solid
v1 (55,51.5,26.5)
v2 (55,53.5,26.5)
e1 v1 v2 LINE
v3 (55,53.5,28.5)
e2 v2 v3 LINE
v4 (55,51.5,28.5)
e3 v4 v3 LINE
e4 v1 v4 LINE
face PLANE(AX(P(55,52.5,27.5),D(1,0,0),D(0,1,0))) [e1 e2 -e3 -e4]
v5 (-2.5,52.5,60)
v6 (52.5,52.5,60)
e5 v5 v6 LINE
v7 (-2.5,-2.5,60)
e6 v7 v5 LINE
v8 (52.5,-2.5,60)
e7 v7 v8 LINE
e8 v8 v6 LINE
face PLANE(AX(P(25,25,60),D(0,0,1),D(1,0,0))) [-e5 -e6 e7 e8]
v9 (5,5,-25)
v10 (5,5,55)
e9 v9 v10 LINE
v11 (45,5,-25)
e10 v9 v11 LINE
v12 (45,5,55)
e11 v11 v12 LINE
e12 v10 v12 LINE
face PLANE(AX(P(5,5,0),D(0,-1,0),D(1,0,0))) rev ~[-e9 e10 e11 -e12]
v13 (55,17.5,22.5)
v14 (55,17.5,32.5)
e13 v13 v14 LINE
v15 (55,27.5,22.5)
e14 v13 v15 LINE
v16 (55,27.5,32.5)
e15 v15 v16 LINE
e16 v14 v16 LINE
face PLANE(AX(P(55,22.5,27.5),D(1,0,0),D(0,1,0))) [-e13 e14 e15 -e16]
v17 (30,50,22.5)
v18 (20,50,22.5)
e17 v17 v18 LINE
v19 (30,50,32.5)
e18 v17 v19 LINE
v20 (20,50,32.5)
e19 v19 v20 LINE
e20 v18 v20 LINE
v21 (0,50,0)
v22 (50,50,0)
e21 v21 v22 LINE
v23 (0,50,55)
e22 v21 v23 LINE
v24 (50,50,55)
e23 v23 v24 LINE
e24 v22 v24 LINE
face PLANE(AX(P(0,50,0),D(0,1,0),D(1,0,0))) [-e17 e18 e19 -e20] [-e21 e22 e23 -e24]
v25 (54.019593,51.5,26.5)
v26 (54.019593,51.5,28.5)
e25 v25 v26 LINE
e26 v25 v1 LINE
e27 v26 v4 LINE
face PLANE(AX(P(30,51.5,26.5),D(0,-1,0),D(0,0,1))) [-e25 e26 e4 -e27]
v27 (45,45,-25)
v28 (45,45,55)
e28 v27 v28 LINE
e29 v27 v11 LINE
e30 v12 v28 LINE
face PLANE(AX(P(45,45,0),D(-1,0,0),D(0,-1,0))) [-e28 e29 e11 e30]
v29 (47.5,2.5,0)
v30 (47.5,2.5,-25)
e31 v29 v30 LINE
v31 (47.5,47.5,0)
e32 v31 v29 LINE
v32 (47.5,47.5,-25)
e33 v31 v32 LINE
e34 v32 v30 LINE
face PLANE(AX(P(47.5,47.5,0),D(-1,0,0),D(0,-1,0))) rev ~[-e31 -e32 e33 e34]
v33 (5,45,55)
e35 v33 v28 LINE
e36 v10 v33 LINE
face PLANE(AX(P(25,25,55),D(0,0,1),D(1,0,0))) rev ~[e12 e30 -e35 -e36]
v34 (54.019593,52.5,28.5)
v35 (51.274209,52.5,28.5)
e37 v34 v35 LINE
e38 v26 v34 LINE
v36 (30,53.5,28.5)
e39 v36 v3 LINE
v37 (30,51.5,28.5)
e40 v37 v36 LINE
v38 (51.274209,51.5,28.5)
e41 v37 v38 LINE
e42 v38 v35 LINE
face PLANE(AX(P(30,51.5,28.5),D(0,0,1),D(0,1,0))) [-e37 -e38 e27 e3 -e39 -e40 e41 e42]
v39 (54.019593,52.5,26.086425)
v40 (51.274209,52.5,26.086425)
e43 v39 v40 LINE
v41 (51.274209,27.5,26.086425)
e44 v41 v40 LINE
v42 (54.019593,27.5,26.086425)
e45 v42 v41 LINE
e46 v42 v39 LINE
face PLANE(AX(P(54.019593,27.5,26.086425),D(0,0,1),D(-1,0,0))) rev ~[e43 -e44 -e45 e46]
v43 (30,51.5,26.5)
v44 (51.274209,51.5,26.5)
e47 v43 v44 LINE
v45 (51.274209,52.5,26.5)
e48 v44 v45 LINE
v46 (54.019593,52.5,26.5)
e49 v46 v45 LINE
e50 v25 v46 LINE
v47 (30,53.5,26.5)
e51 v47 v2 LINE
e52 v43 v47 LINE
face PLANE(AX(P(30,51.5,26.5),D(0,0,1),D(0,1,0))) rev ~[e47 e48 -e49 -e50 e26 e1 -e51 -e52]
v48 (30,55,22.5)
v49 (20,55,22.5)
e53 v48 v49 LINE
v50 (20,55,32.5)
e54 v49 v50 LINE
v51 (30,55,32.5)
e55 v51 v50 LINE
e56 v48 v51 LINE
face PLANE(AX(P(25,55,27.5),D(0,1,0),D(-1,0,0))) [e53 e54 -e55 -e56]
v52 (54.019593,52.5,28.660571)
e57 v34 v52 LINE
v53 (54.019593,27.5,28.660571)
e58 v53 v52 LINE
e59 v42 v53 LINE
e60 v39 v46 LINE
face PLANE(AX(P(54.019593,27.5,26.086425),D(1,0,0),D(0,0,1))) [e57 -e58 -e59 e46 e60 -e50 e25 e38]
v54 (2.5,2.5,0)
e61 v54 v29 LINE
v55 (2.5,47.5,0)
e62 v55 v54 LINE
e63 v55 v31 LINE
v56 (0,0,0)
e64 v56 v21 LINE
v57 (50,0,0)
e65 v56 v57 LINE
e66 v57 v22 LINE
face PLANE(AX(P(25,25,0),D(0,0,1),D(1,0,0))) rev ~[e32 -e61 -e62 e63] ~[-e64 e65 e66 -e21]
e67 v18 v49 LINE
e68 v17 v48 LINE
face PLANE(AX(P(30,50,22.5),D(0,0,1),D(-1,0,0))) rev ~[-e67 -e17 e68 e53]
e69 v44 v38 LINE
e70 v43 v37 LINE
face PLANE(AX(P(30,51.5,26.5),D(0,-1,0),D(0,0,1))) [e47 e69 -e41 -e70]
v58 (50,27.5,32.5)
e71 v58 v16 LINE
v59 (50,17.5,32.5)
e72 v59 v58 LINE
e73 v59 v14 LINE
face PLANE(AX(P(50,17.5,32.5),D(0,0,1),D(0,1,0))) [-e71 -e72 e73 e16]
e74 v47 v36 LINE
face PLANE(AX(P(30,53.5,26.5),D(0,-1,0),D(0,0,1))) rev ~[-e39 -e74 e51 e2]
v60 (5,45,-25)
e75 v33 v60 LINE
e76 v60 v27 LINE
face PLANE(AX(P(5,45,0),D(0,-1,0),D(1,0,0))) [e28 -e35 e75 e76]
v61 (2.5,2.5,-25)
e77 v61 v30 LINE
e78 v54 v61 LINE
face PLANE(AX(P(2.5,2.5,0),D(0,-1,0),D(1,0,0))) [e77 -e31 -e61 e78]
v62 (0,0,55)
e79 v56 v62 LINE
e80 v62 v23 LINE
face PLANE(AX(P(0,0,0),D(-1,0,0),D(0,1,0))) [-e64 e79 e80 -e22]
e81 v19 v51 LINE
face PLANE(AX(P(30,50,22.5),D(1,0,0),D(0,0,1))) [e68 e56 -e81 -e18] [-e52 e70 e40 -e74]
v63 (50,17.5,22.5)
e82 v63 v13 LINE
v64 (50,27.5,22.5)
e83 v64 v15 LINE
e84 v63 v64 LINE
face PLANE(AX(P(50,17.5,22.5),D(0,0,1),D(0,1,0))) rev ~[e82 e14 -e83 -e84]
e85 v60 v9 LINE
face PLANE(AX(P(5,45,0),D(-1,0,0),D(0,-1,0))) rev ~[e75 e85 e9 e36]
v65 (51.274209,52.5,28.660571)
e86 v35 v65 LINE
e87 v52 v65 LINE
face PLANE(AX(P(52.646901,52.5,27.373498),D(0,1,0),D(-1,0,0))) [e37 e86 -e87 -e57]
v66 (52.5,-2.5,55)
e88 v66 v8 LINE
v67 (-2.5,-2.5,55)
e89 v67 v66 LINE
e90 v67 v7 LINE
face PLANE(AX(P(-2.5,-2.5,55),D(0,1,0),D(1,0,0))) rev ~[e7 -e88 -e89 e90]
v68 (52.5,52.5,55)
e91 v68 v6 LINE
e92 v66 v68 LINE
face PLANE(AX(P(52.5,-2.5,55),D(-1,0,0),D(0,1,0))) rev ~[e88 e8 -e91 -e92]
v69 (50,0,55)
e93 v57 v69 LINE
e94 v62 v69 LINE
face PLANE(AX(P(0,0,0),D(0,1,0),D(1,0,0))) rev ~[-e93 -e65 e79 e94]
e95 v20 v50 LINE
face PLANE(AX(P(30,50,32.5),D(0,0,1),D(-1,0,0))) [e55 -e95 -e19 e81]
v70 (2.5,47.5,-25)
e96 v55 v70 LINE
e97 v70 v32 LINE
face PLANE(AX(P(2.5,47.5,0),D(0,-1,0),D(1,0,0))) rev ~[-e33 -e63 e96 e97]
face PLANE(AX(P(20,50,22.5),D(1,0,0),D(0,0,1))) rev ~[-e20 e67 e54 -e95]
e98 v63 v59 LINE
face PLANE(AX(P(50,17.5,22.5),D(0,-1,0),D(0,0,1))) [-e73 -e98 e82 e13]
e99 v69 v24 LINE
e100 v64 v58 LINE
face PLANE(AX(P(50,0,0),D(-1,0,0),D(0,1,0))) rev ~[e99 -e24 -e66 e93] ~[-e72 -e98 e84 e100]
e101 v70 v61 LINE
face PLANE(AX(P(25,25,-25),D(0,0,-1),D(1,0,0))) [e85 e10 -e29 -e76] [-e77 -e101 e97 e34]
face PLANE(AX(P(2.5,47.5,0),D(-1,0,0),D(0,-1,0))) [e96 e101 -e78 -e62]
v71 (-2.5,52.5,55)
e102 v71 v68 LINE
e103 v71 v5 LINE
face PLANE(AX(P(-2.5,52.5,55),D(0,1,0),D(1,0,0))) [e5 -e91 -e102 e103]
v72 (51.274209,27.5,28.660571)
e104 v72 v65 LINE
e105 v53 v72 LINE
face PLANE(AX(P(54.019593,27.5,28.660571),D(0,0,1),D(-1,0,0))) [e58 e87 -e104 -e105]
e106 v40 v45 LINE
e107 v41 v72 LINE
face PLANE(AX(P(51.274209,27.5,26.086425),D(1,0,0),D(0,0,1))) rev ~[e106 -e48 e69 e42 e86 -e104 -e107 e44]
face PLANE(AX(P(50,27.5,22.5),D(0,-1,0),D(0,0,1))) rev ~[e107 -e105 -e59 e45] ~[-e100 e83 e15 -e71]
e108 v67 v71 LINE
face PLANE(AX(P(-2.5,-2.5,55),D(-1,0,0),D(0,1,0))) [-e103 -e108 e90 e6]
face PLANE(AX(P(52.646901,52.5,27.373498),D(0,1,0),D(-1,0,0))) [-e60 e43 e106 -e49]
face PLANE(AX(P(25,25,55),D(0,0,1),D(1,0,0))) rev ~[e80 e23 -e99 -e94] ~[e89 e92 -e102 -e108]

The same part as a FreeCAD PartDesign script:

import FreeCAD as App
import Part
import Sketcher
from FreeCAD import Vector

doc = App.newDocument("Part")
body = doc.addObject("PartDesign::Body", "Body")

# Sketch on XY plane
sketch1 = doc.addObject("Sketcher::SketchObject", "Sketch")
body.addObject(sketch1)
sketch1.AttachmentSupport = (doc.XY_Plane, [""])
sketch1.MapMode = "FlatFace"
sketch1.addGeometry(Part.LineSegment(Vector(0, 50, 0), Vector(0, 0, 0)), False)
sketch1.addGeometry(Part.LineSegment(Vector(0, 0, 0), Vector(50, 0, 0)), False)
sketch1.addGeometry(Part.LineSegment(Vector(50, 0, 0), Vector(50, 50, 0)), False)
sketch1.addGeometry(Part.LineSegment(Vector(50, 50, 0), Vector(0, 50, 0)), False)
sketch1.addGeometry(Part.LineSegment(Vector(45, 5, 0), Vector(5, 5, 0)), False)
sketch1.addGeometry(Part.LineSegment(Vector(5, 5, 0), Vector(5, 45, 0)), False)
sketch1.addGeometry(Part.LineSegment(Vector(5, 45, 0), Vector(45, 45, 0)), False)
sketch1.addGeometry(Part.LineSegment(Vector(45, 45, 0), Vector(45, 5, 0)), False)
sketch1.addConstraint(Sketcher.Constraint("Coincident", 0, 2, 1, 1))
sketch1.addConstraint(Sketcher.Constraint("Coincident", 1, 2, 2, 1))
sketch1.addConstraint(Sketcher.Constraint("Coincident", 2, 2, 3, 1))
sketch1.addConstraint(Sketcher.Constraint("Coincident", 3, 2, 0, 1))
sketch1.addConstraint(Sketcher.Constraint("Coincident", 4, 2, 5, 1))
sketch1.addConstraint(Sketcher.Constraint("Coincident", 5, 2, 6, 1))
sketch1.addConstraint(Sketcher.Constraint("Coincident", 6, 2, 7, 1))
sketch1.addConstraint(Sketcher.Constraint("Coincident", 7, 2, 4, 1))
sketch1.addConstraint(Sketcher.Constraint("Vertical", 0))
sketch1.addConstraint(Sketcher.Constraint("Horizontal", 1))
sketch1.addConstraint(Sketcher.Constraint("Vertical", 2))
sketch1.addConstraint(Sketcher.Constraint("Horizontal", 3))
sketch1.addConstraint(Sketcher.Constraint("Horizontal", 4))
sketch1.addConstraint(Sketcher.Constraint("Vertical", 5))
sketch1.addConstraint(Sketcher.Constraint("Horizontal", 6))
sketch1.addConstraint(Sketcher.Constraint("Vertical", 7))
sketch1.addConstraint(Sketcher.Constraint("Coincident", 0, 2, -1, 1))
sketch1.addConstraint(Sketcher.Constraint("Equal", 3, 0))
sketch1.addConstraint(Sketcher.Constraint("Equal", 6, 5))
sketch1.addConstraint(Sketcher.Constraint("DistanceX", 1, 1, 1, 2, 50.0))
sketch1.addConstraint(Sketcher.Constraint("DistanceX", 4, 2, 4, 1, 40.0))
sketch1.addConstraint(Sketcher.Constraint("DistanceX", -1, 1, 4, 2, 5.0))
sketch1.addConstraint(Sketcher.Constraint("DistanceY", -1, 1, 4, 2, 5.0))
pad1 = doc.addObject("PartDesign::Pad", "Pad")
body.addObject(pad1)
pad1.Profile = sketch1
pad1.Length = 55

# Sketch on XY plane
sketch2 = doc.addObject("Sketcher::SketchObject", "Sketch001")
body.addObject(sketch2)
sketch2.AttachmentSupport = (doc.XY_Plane, [""])
sketch2.MapMode = "FlatFace"
sketch2.AttachmentOffset = App.Placement(Vector(0, 0, 55), App.Rotation())
sketch2.addGeometry(Part.LineSegment(Vector(-2.5, 52.5, 0), Vector(-2.5, -2.5, 0)), False)
sketch2.addGeometry(Part.LineSegment(Vector(-2.5, -2.5, 0), Vector(52.5, -2.5, 0)), False)
sketch2.addGeometry(Part.LineSegment(Vector(52.5, -2.5, 0), Vector(52.5, 52.5, 0)), False)
sketch2.addGeometry(Part.LineSegment(Vector(52.5, 52.5, 0), Vector(-2.5, 52.5, 0)), False)
sketch2.addConstraint(Sketcher.Constraint("Coincident", 0, 2, 1, 1))
sketch2.addConstraint(Sketcher.Constraint("Coincident", 1, 2, 2, 1))
sketch2.addConstraint(Sketcher.Constraint("Coincident", 2, 2, 3, 1))
sketch2.addConstraint(Sketcher.Constraint("Coincident", 3, 2, 0, 1))
sketch2.addConstraint(Sketcher.Constraint("Vertical", 0))
sketch2.addConstraint(Sketcher.Constraint("Horizontal", 1))
sketch2.addConstraint(Sketcher.Constraint("Vertical", 2))
sketch2.addConstraint(Sketcher.Constraint("Horizontal", 3))
sketch2.addConstraint(Sketcher.Constraint("Equal", 3, 0))
sketch2.addConstraint(Sketcher.Constraint("DistanceX", 1, 1, 1, 2, 55.0))
sketch2.addConstraint(Sketcher.Constraint("DistanceX", 0, 2, -1, 1, 2.5))
sketch2.addConstraint(Sketcher.Constraint("DistanceY", 0, 2, -1, 1, 2.5))
pad2 = doc.addObject("PartDesign::Pad", "Pad001")
body.addObject(pad2)
pad2.Profile = sketch2
pad2.Length = 5

# Sketch on XY plane
sketch3 = doc.addObject("Sketcher::SketchObject", "Sketch002")
body.addObject(sketch3)
sketch3.AttachmentSupport = (doc.XY_Plane, [""])
sketch3.MapMode = "FlatFace"
sketch3.addGeometry(Part.LineSegment(Vector(2.5, 2.5, 0), Vector(2.5, 47.5, 0)), False)
sketch3.addGeometry(Part.LineSegment(Vector(2.5, 47.5, 0), Vector(47.5, 47.5, 0)), False)
sketch3.addGeometry(Part.LineSegment(Vector(47.5, 47.5, 0), Vector(47.5, 2.5, 0)), False)
sketch3.addGeometry(Part.LineSegment(Vector(47.5, 2.5, 0), Vector(2.5, 2.5, 0)), False)
sketch3.addGeometry(Part.LineSegment(Vector(45, 45, 0), Vector(5, 45, 0)), False)
sketch3.addGeometry(Part.LineSegment(Vector(5, 45, 0), Vector(5, 5, 0)), False)
sketch3.addGeometry(Part.LineSegment(Vector(5, 5, 0), Vector(45, 5, 0)), False)
sketch3.addGeometry(Part.LineSegment(Vector(45, 5, 0), Vector(45, 45, 0)), False)
sketch3.addConstraint(Sketcher.Constraint("Coincident", 0, 2, 1, 1))
sketch3.addConstraint(Sketcher.Constraint("Coincident", 1, 2, 2, 1))
sketch3.addConstraint(Sketcher.Constraint("Coincident", 2, 2, 3, 1))
sketch3.addConstraint(Sketcher.Constraint("Coincident", 3, 2, 0, 1))
sketch3.addConstraint(Sketcher.Constraint("Coincident", 4, 2, 5, 1))
sketch3.addConstraint(Sketcher.Constraint("Coincident", 5, 2, 6, 1))
sketch3.addConstraint(Sketcher.Constraint("Coincident", 6, 2, 7, 1))
sketch3.addConstraint(Sketcher.Constraint("Coincident", 7, 2, 4, 1))
sketch3.addConstraint(Sketcher.Constraint("Vertical", 0))
sketch3.addConstraint(Sketcher.Constraint("Horizontal", 1))
sketch3.addConstraint(Sketcher.Constraint("Vertical", 2))
sketch3.addConstraint(Sketcher.Constraint("Horizontal", 3))
sketch3.addConstraint(Sketcher.Constraint("Horizontal", 4))
sketch3.addConstraint(Sketcher.Constraint("Vertical", 5))
sketch3.addConstraint(Sketcher.Constraint("Horizontal", 6))
sketch3.addConstraint(Sketcher.Constraint("Vertical", 7))
sketch3.addConstraint(Sketcher.Constraint("Equal", 3, 0))
sketch3.addConstraint(Sketcher.Constraint("Equal", 6, 5))
sketch3.addConstraint(Sketcher.Constraint("DistanceX", 1, 1, 1, 2, 45.0))
sketch3.addConstraint(Sketcher.Constraint("DistanceX", 4, 2, 4, 1, 40.0))
sketch3.addConstraint(Sketcher.Constraint("DistanceX", -1, 1, 4, 2, 5.0))
sketch3.addConstraint(Sketcher.Constraint("DistanceY", -1, 1, 4, 2, 45.0))
sketch3.addConstraint(Sketcher.Constraint("DistanceX", -1, 1, 0, 2, 2.5))
sketch3.addConstraint(Sketcher.Constraint("DistanceY", -1, 1, 0, 2, 47.5))
pad3 = doc.addObject("PartDesign::Pad", "Pad002")
body.addObject(pad3)
pad3.Profile = sketch3
pad3.Length = 25
pad3.Reversed = True

# Sketch on XZ plane
sketch4 = doc.addObject("Sketcher::SketchObject", "Sketch003")
body.addObject(sketch4)
sketch4.AttachmentSupport = (doc.XZ_Plane, [""])
sketch4.MapMode = "FlatFace"
sketch4.AttachmentOffset = App.Placement(Vector(0, 0, -50), App.Rotation())
sketch4.addGeometry(Part.LineSegment(Vector(30, 32.5, 0), Vector(30, 22.5, 0)), False)
sketch4.addGeometry(Part.LineSegment(Vector(30, 22.5, 0), Vector(20, 22.5, 0)), False)
sketch4.addGeometry(Part.LineSegment(Vector(20, 22.5, 0), Vector(20, 32.5, 0)), False)
sketch4.addGeometry(Part.LineSegment(Vector(20, 32.5, 0), Vector(30, 32.5, 0)), False)
sketch4.addConstraint(Sketcher.Constraint("Coincident", 0, 2, 1, 1))
sketch4.addConstraint(Sketcher.Constraint("Coincident", 1, 2, 2, 1))
sketch4.addConstraint(Sketcher.Constraint("Coincident", 2, 2, 3, 1))
sketch4.addConstraint(Sketcher.Constraint("Coincident", 3, 2, 0, 1))
sketch4.addConstraint(Sketcher.Constraint("Vertical", 0))
sketch4.addConstraint(Sketcher.Constraint("Horizontal", 1))
sketch4.addConstraint(Sketcher.Constraint("Vertical", 2))
sketch4.addConstraint(Sketcher.Constraint("Horizontal", 3))
sketch4.addConstraint(Sketcher.Constraint("Equal", 3, 0))
sketch4.addConstraint(Sketcher.Constraint("DistanceX", 1, 2, 1, 1, 10.0))
sketch4.addConstraint(Sketcher.Constraint("DistanceX", -1, 1, 0, 2, 30.0))
sketch4.addConstraint(Sketcher.Constraint("DistanceY", -1, 1, 0, 2, 22.5))
pad4 = doc.addObject("PartDesign::Pad", "Pad003")
body.addObject(pad4)
pad4.Profile = sketch4
pad4.Length = 5
pad4.Reversed = True

# Sketch on YZ plane
sketch5 = doc.addObject("Sketcher::SketchObject", "Sketch004")
body.addObject(sketch5)
sketch5.AttachmentSupport = (doc.YZ_Plane, [""])
sketch5.MapMode = "FlatFace"
sketch5.AttachmentOffset = App.Placement(Vector(0, 0, 30), App.Rotation())
sketch5.addGeometry(Part.LineSegment(Vector(51.5, 28.5, 0), Vector(51.5, 26.5, 0)), False)
sketch5.addGeometry(Part.LineSegment(Vector(51.5, 26.5, 0), Vector(53.5, 26.5, 0)), False)
sketch5.addGeometry(Part.LineSegment(Vector(53.5, 26.5, 0), Vector(53.5, 28.5, 0)), False)
sketch5.addGeometry(Part.LineSegment(Vector(53.5, 28.5, 0), Vector(51.5, 28.5, 0)), False)
sketch5.addConstraint(Sketcher.Constraint("Coincident", 0, 2, 1, 1))
sketch5.addConstraint(Sketcher.Constraint("Coincident", 1, 2, 2, 1))
sketch5.addConstraint(Sketcher.Constraint("Coincident", 2, 2, 3, 1))
sketch5.addConstraint(Sketcher.Constraint("Coincident", 3, 2, 0, 1))
sketch5.addConstraint(Sketcher.Constraint("Vertical", 0))
sketch5.addConstraint(Sketcher.Constraint("Horizontal", 1))
sketch5.addConstraint(Sketcher.Constraint("Vertical", 2))
sketch5.addConstraint(Sketcher.Constraint("Horizontal", 3))
sketch5.addConstraint(Sketcher.Constraint("Equal", 3, 0))
sketch5.addConstraint(Sketcher.Constraint("DistanceX", 1, 1, 1, 2, 2.0))
sketch5.addConstraint(Sketcher.Constraint("DistanceX", -1, 1, 0, 2, 51.5))
sketch5.addConstraint(Sketcher.Constraint("DistanceY", -1, 1, 0, 2, 26.5))
pad5 = doc.addObject("PartDesign::Pad", "Pad004")
body.addObject(pad5)
pad5.Profile = sketch5
pad5.Length = 25

# Sketch on YZ plane
sketch6 = doc.addObject("Sketcher::SketchObject", "Sketch005")
body.addObject(sketch6)
sketch6.AttachmentSupport = (doc.YZ_Plane, [""])
sketch6.MapMode = "FlatFace"
sketch6.AttachmentOffset = App.Placement(Vector(0, 0, 50), App.Rotation())
sketch6.addGeometry(Part.LineSegment(Vector(17.5, 32.5, 0), Vector(17.5, 22.5, 0)), False)
sketch6.addGeometry(Part.LineSegment(Vector(17.5, 22.5, 0), Vector(27.5, 22.5, 0)), False)
sketch6.addGeometry(Part.LineSegment(Vector(27.5, 22.5, 0), Vector(27.5, 32.5, 0)), False)
sketch6.addGeometry(Part.LineSegment(Vector(27.5, 32.5, 0), Vector(17.5, 32.5, 0)), False)
sketch6.addConstraint(Sketcher.Constraint("Coincident", 0, 2, 1, 1))
sketch6.addConstraint(Sketcher.Constraint("Coincident", 1, 2, 2, 1))
sketch6.addConstraint(Sketcher.Constraint("Coincident", 2, 2, 3, 1))
sketch6.addConstraint(Sketcher.Constraint("Coincident", 3, 2, 0, 1))
sketch6.addConstraint(Sketcher.Constraint("Vertical", 0))
sketch6.addConstraint(Sketcher.Constraint("Horizontal", 1))
sketch6.addConstraint(Sketcher.Constraint("Vertical", 2))
sketch6.addConstraint(Sketcher.Constraint("Horizontal", 3))
sketch6.addConstraint(Sketcher.Constraint("Equal", 3, 0))
sketch6.addConstraint(Sketcher.Constraint("DistanceX", 1, 1, 1, 2, 10.0))
sketch6.addConstraint(Sketcher.Constraint("DistanceX", -1, 1, 0, 2, 17.5))
sketch6.addConstraint(Sketcher.Constraint("DistanceY", -1, 1, 0, 2, 22.5))
pad6 = doc.addObject("PartDesign::Pad", "Pad005")
body.addObject(pad6)
pad6.Profile = sketch6
pad6.Length = 5

# Sketch on XZ plane
sketch7 = doc.addObject("Sketcher::SketchObject", "Sketch006")
body.addObject(sketch7)
sketch7.AttachmentSupport = (doc.XZ_Plane, [""])
sketch7.MapMode = "FlatFace"
sketch7.AttachmentOffset = App.Placement(Vector(0, 0, -27.5), App.Rotation())
sketch7.addGeometry(Part.LineSegment(Vector(54.019593, 28.660571, 0), Vector(54.019593, 26.086425, 0)), False)
sketch7.addGeometry(Part.LineSegment(Vector(54.019593, 26.086425, 0), Vector(51.274209, 26.086425, 0)), False)
sketch7.addGeometry(Part.LineSegment(Vector(51.274209, 26.086425, 0), Vector(51.274209, 28.660571, 0)), False)
sketch7.addGeometry(Part.LineSegment(Vector(51.274209, 28.660571, 0), Vector(54.019593, 28.660571, 0)), False)
sketch7.addConstraint(Sketcher.Constraint("Coincident", 0, 2, 1, 1))
sketch7.addConstraint(Sketcher.Constraint("Coincident", 1, 2, 2, 1))
sketch7.addConstraint(Sketcher.Constraint("Coincident", 2, 2, 3, 1))
sketch7.addConstraint(Sketcher.Constraint("Coincident", 3, 2, 0, 1))
sketch7.addConstraint(Sketcher.Constraint("Vertical", 0))
sketch7.addConstraint(Sketcher.Constraint("Horizontal", 1))
sketch7.addConstraint(Sketcher.Constraint("Vertical", 2))
sketch7.addConstraint(Sketcher.Constraint("Horizontal", 3))
sketch7.addConstraint(Sketcher.Constraint("DistanceX", 1, 2, 1, 1, 2.745383))
sketch7.addConstraint(Sketcher.Constraint("DistanceY", 0, 2, 0, 1, 2.574146))
sketch7.addConstraint(Sketcher.Constraint("DistanceX", -1, 1, 1, 2, 51.274209))
sketch7.addConstraint(Sketcher.Constraint("DistanceY", -1, 1, 2, 2, 28.660571))
pad7 = doc.addObject("PartDesign::Pad", "Pad006")
body.addObject(pad7)
pad7.Profile = sketch7
pad7.Length = 25
pad7.Reversed = True

doc.recompute()
